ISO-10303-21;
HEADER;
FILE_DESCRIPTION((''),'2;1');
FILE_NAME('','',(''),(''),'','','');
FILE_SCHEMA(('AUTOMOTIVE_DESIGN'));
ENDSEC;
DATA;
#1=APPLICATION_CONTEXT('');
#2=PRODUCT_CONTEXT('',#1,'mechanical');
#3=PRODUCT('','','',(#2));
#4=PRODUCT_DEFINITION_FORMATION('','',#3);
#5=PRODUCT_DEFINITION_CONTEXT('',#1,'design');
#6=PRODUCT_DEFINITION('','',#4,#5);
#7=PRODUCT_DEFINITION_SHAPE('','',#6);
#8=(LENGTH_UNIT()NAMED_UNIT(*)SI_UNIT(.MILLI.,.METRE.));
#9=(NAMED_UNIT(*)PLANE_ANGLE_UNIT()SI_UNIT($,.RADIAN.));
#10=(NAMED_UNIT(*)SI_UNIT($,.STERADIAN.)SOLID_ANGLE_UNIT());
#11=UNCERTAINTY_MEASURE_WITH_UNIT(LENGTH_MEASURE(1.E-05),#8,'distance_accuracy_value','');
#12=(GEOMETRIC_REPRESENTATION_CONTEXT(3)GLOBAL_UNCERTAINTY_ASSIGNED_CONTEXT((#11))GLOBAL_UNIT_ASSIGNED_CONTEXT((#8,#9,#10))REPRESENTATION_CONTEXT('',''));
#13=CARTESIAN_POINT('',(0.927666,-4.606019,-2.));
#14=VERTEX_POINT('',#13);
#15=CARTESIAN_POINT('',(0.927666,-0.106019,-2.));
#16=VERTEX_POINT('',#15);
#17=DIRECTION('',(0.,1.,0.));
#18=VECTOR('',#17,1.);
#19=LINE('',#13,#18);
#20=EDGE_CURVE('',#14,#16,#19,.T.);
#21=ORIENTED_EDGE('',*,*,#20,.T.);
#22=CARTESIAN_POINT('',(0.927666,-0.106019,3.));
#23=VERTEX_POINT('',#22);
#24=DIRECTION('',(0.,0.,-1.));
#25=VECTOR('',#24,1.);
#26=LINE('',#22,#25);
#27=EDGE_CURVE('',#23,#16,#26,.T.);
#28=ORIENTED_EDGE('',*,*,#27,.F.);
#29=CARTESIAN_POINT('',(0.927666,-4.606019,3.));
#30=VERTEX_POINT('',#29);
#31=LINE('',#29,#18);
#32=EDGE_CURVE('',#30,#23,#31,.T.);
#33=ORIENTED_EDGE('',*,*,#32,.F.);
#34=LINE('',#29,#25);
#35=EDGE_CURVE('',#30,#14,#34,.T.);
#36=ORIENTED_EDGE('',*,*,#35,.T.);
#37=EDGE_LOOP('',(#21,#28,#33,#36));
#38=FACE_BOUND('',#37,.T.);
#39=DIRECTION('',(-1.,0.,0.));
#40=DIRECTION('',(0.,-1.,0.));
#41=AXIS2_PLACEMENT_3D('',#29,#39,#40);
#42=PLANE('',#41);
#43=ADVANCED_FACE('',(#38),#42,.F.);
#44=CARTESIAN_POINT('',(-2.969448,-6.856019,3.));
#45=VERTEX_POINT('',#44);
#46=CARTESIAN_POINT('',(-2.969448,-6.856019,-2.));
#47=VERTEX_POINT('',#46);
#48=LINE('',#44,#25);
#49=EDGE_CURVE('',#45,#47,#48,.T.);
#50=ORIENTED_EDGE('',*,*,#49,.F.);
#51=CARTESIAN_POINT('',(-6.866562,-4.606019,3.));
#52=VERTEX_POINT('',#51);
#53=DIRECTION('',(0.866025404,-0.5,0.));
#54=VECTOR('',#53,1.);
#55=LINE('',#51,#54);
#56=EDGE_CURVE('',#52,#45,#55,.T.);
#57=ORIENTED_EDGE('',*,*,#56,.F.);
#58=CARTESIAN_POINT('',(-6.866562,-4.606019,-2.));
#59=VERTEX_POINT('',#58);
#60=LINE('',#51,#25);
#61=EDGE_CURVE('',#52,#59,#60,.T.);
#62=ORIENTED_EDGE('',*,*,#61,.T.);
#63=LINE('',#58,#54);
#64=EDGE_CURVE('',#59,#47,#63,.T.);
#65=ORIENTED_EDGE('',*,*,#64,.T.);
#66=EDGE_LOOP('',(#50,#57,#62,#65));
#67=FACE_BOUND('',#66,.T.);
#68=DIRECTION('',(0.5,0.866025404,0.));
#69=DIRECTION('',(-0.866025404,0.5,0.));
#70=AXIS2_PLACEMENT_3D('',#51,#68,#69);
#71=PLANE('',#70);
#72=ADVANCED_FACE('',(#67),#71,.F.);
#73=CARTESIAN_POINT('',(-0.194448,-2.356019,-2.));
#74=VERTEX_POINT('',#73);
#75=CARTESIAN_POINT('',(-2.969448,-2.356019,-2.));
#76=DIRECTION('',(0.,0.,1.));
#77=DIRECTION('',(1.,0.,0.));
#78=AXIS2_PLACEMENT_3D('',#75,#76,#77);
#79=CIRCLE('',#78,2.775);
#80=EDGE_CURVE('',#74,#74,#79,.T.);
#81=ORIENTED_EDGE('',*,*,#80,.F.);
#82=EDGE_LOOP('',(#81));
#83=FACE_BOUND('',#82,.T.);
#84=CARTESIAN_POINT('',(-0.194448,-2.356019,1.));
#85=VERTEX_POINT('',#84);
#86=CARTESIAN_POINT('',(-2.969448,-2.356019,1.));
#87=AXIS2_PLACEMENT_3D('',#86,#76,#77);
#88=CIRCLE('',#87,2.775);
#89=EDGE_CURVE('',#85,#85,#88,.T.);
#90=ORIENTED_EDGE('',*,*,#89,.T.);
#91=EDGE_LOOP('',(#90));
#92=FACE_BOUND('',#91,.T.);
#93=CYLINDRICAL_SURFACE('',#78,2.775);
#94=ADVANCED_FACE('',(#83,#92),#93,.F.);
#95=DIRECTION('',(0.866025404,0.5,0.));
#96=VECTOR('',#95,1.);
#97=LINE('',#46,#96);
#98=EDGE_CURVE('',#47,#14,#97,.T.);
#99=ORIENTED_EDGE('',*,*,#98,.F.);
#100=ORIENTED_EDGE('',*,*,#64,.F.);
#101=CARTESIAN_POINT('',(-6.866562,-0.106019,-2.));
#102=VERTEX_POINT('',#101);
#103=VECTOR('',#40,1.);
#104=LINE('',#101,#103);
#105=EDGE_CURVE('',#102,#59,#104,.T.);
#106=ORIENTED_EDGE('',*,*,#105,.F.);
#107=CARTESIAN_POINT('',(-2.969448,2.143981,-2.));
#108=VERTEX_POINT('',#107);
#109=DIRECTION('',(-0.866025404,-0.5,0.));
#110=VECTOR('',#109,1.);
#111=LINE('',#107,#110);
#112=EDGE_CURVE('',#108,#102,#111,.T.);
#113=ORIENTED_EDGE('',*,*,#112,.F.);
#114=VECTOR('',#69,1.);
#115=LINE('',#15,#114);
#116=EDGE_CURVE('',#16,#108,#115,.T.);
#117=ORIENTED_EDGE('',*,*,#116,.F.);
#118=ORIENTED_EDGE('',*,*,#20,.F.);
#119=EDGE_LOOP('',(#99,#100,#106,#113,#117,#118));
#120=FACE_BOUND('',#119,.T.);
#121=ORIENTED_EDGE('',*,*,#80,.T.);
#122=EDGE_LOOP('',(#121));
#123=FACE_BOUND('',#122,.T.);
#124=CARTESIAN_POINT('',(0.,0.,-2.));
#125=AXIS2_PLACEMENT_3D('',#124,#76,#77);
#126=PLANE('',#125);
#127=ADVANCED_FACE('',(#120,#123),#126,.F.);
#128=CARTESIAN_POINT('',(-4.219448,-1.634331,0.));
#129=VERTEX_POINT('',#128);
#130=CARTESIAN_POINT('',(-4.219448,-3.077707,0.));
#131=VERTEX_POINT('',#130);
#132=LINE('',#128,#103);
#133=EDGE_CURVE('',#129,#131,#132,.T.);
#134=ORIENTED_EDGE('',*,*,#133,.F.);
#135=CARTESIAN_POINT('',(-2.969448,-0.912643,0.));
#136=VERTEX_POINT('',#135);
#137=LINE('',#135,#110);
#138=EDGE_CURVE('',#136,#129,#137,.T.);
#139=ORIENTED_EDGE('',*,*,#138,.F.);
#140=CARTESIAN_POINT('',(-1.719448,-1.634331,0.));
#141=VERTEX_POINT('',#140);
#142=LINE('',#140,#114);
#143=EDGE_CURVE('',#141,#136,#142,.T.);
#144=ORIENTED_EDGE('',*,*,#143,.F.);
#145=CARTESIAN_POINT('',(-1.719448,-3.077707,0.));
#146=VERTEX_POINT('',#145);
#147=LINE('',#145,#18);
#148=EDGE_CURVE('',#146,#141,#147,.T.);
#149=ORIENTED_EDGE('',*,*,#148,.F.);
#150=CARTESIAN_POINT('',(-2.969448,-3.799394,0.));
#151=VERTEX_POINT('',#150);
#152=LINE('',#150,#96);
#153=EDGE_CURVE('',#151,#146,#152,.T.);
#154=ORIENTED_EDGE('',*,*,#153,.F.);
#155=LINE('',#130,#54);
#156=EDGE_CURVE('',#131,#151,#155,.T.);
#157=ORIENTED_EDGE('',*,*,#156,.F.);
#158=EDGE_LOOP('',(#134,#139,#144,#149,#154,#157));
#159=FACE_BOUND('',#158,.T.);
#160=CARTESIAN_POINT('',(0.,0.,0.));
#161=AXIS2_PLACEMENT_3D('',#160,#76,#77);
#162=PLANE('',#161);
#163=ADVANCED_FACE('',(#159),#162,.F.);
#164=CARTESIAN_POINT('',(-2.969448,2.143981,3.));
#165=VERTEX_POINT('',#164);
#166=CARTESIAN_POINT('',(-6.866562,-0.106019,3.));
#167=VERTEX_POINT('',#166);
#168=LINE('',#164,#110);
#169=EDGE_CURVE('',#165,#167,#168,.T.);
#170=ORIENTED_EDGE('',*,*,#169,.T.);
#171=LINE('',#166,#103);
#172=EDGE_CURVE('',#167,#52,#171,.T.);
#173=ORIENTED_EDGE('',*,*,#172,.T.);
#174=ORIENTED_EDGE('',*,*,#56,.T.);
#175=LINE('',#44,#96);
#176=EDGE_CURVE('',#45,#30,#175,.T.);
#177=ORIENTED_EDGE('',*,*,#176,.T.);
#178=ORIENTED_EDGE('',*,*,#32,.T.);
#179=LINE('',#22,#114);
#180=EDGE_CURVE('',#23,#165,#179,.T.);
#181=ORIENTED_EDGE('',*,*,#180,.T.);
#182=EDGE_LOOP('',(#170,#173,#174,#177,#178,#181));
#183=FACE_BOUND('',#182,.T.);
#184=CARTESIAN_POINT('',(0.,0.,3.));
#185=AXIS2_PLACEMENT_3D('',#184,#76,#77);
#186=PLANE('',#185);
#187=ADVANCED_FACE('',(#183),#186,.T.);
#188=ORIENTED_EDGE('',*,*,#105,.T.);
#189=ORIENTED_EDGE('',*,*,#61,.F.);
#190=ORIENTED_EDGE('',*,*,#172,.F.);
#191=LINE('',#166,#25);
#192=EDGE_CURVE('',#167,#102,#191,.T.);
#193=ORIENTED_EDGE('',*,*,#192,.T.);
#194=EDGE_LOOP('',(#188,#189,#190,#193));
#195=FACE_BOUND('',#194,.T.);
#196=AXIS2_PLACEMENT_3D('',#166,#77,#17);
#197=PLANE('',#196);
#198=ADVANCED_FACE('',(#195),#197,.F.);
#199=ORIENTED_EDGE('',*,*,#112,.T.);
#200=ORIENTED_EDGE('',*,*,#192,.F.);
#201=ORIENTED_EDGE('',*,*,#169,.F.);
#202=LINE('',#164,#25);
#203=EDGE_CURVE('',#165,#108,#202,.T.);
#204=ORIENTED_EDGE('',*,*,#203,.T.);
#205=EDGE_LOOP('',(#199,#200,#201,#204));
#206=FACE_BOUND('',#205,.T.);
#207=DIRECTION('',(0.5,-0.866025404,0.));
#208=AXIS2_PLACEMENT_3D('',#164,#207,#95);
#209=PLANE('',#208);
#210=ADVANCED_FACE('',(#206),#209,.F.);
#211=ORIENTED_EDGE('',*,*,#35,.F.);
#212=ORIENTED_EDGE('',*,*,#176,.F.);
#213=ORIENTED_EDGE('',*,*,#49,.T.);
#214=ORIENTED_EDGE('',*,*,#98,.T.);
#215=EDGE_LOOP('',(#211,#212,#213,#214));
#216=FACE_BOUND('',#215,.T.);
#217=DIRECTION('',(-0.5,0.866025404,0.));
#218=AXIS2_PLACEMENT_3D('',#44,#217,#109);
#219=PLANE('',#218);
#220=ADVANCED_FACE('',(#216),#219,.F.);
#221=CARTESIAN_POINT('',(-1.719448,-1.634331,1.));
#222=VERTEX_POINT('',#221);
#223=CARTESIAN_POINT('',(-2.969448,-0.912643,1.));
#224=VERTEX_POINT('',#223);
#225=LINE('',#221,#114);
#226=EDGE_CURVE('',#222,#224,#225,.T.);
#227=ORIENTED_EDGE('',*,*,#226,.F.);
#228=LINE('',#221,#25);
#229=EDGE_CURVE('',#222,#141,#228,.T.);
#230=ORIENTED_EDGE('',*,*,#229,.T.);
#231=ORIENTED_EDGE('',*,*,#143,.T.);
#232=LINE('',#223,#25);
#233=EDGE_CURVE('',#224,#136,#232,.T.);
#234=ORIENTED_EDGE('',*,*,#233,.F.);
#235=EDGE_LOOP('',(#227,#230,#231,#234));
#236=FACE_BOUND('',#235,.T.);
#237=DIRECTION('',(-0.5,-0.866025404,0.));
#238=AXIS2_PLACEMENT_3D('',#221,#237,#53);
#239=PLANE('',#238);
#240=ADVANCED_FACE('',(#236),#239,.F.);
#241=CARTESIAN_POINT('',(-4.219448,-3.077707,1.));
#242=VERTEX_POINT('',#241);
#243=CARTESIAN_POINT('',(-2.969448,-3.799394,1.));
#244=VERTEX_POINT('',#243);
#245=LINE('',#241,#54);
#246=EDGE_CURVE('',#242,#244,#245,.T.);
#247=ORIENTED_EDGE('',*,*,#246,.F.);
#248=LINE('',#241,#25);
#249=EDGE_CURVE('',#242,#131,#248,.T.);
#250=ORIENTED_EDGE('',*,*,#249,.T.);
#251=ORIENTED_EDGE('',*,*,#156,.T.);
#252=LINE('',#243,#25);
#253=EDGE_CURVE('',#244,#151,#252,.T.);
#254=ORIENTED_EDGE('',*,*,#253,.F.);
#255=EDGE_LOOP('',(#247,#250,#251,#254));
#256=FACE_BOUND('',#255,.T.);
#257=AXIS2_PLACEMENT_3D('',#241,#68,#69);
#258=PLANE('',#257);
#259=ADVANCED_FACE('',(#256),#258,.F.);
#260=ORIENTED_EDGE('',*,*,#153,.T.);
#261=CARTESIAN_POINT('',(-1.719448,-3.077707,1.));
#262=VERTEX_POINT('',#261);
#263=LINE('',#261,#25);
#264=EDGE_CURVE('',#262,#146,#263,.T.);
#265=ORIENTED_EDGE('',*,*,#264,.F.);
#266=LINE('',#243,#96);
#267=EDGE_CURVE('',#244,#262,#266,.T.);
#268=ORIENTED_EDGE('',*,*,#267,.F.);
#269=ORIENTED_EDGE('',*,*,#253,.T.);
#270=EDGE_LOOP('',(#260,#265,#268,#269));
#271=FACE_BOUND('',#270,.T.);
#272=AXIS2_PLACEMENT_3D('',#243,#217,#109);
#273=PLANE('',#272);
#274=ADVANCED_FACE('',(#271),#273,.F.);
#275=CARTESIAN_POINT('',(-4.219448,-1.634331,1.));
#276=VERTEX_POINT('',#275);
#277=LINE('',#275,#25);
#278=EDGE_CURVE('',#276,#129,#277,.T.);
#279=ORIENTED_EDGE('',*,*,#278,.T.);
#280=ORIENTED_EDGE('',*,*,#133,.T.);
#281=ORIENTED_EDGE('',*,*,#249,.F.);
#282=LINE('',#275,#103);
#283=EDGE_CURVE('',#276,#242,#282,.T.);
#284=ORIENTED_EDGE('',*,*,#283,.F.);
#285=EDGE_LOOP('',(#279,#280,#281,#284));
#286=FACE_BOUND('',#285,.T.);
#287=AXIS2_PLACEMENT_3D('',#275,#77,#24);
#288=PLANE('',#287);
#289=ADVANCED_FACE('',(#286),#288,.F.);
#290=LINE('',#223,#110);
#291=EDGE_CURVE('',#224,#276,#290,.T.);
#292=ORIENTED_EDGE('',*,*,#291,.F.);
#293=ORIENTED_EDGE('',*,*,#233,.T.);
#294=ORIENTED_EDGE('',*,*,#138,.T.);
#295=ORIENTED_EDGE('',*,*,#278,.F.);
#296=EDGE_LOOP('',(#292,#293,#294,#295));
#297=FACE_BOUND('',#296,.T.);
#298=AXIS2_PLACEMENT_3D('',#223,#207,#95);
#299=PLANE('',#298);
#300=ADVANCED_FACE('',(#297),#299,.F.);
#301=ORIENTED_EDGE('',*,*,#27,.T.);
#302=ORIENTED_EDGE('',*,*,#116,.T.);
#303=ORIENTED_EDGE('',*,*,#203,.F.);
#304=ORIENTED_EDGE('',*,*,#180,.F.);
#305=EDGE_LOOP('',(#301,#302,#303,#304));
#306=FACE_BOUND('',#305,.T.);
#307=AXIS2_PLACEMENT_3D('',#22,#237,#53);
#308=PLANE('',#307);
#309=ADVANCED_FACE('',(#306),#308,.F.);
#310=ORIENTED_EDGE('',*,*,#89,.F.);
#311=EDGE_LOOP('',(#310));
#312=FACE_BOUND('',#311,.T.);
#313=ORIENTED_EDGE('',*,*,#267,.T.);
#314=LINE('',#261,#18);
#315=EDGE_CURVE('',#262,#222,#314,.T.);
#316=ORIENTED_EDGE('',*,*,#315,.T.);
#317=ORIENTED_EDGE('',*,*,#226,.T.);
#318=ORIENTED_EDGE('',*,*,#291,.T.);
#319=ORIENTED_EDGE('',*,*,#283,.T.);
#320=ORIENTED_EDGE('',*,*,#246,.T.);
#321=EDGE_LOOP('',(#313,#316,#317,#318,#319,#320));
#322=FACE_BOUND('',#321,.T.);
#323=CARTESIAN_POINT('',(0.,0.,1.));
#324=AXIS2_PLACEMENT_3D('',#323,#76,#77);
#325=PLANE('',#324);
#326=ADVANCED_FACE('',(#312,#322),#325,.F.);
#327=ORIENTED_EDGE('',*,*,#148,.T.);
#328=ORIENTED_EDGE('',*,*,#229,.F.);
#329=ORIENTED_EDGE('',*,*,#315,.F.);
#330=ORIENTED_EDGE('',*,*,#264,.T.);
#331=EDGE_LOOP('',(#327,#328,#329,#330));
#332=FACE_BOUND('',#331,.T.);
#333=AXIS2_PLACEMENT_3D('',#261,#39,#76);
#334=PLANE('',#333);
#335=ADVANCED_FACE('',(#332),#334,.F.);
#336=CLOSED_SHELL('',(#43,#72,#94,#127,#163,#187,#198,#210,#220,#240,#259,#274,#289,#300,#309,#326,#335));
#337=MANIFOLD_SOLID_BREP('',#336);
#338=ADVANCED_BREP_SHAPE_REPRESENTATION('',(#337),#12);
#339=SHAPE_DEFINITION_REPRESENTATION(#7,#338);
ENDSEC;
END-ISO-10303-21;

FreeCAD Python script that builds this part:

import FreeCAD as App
import Part
import Sketcher

V = App.Vector
Q = App.Units.Quantity

doc = App.newDocument("Part")
body = doc.addObject("PartDesign::Body", "Body")

# Sketch on XY plane
sketch1 = body.newObject("Sketcher::SketchObject", "Sketch")
sketch1.AttachmentSupport = (doc.getObject("XY_Plane"), [""])
sketch1.MapMode = "FlatFace"
sketch1.addGeometry(Part.LineSegment(V(-1.7, -3.1, 0), V(-1.7, -1.6, 0)), False)
sketch1.addGeometry(Part.LineSegment(V(-1.7, -1.6, 0), V(-3, -0.9, 0)), False)
sketch1.addGeometry(Part.LineSegment(V(-3, -0.9, 0), V(-4.2, -1.6, 0)), False)
sketch1.addGeometry(Part.LineSegment(V(-4.2, -1.6, 0), V(-4.2, -3.1, 0)), False)
sketch1.addGeometry(Part.LineSegment(V(-4.2, -3.1, 0), V(-3, -3.8, 0)), False)
sketch1.addGeometry(Part.LineSegment(V(-3, -3.8, 0), V(-1.7, -3.1, 0)), False)
sketch1.addConstraint(Sketcher.Constraint("Coincident", 0, 2, 1, 1))
sketch1.addConstraint(Sketcher.Constraint("Coincident", 1, 2, 2, 1))
sketch1.addConstraint(Sketcher.Constraint("Coincident", 2, 2, 3, 1))
sketch1.addConstraint(Sketcher.Constraint("Coincident", 3, 2, 4, 1))
sketch1.addConstraint(Sketcher.Constraint("Coincident", 4, 2, 5, 1))
sketch1.addConstraint(Sketcher.Constraint("Coincident", 5, 2, 0, 1))
sketch1.addConstraint(Sketcher.Constraint("Vertical", 0))
sketch1.addConstraint(Sketcher.Constraint("Vertical", 3))
sketch1.addConstraint(Sketcher.Constraint("Parallel", 1, 4))
sketch1.addConstraint(Sketcher.Constraint("Parallel", 2, 5))
sketch1.addConstraint(Sketcher.Constraint("Horizontal", 0, 2, 2, 2))
sketch1.addConstraint(Sketcher.Constraint("Horizontal", 3, 2, 5, 2))
sketch1.addConstraint(Sketcher.Constraint("Vertical", 1, 2, 4, 2))
sketch1.addConstraint(Sketcher.Constraint("Angle", 1, Q("150 deg")))
sketch1.addConstraint(Sketcher.Constraint("DistanceX", 2, 2, 0, 2, Q("2.5 mm")))
sketch1.addConstraint(Sketcher.Constraint("DistanceY", 0, 1, 0, 2, Q("1.443376 mm")))
sketch1.addConstraint(Sketcher.Constraint("DistanceX", 0, 2, -1, 1, Q("1.719448 mm")))
sketch1.addConstraint(Sketcher.Constraint("DistanceY", 0, 2, -1, 1, Q("1.634331 mm")))
pad1 = body.newObject("PartDesign::Pad", "Pad")
pad1.Profile = sketch1
pad1.Length = 1
body2 = doc.addObject("PartDesign::Body", "Body001")

# Sketch on XY plane
sketch2 = body2.newObject("Sketcher::SketchObject", "Sketch001")
sketch2.AttachmentSupport = (doc.getObject("XY_Plane001"), [""])
sketch2.MapMode = "FlatFace"
sketch2.AttachmentOffset = App.Placement(V(0, 0, 1), App.Rotation())
sketch2.addGeometry(Part.LineSegment(V(-3, -6.9, 0), V(0.9, -4.6, 0)), False)
sketch2.addGeometry(Part.LineSegment(V(0.9, -4.6, 0), V(0.9, -0.1, 0)), False)
sketch2.addGeometry(Part.LineSegment(V(0.9, -0.1, 0), V(-3, 2.1, 0)), False)
sketch2.addGeometry(Part.LineSegment(V(-3, 2.1, 0), V(-6.9, -0.1, 0)), False)
sketch2.addGeometry(Part.LineSegment(V(-6.9, -0.1, 0), V(-6.9, -4.6, 0)), False)
sketch2.addGeometry(Part.LineSegment(V(-6.9, -4.6, 0), V(-3, -6.9, 0)), False)
sketch2.addGeometry(Part.Circle(V(-3, -2.4, 0), V(0, 0, 1), 2.8), False)
sketch2.addConstraint(Sketcher.Constraint("Coincident", 0, 2, 1, 1))
sketch2.addConstraint(Sketcher.Constraint("Coincident", 1, 2, 2, 1))
sketch2.addConstraint(Sketcher.Constraint("Coincident", 2, 2, 3, 1))
sketch2.addConstraint(Sketcher.Constraint("Coincident", 3, 2, 4, 1))
sketch2.addConstraint(Sketcher.Constraint("Coincident", 4, 2, 5, 1))
sketch2.addConstraint(Sketcher.Constraint("Coincident", 5, 2, 0, 1))
sketch2.addConstraint(Sketcher.Constraint("Vertical", 1))
sketch2.addConstraint(Sketcher.Constraint("Vertical", 4))
sketch2.addConstraint(Sketcher.Constraint("Parallel", 0, 3))
sketch2.addConstraint(Sketcher.Constraint("Parallel", 2, 5))
sketch2.addConstraint(Sketcher.Constraint("Horizontal", 1, 2, 3, 2))
sketch2.addConstraint(Sketcher.Constraint("Horizontal", 0, 2, 4, 2))
sketch2.addConstraint(Sketcher.Constraint("Vertical", 6, 3, 2, 2))
sketch2.addConstraint(Sketcher.Constraint("Vertical", 2, 2, 5, 2))
sketch2.addConstraint(Sketcher.Constraint("Diameter", 6, Q("5.55 mm")))
sketch2.addConstraint(Sketcher.Constraint("Angle", 0, Q("30 deg")))
sketch2.addConstraint(Sketcher.Constraint("DistanceY", 1, 1, 1, 2, Q("4.5 mm")))
sketch2.addConstraint(Sketcher.Constraint("Distance", 0, Q("4.5 mm")))
sketch2.addConstraint(Sketcher.Constraint("DistanceY", 6, 3, 2, 2, Q("4.5 mm")))
sketch2.addConstraint(Sketcher.Constraint("DistanceX", 6, 3, -1, 1, Q("2.969448 mm")))
sketch2.addConstraint(Sketcher.Constraint("DistanceY", 6, 3, -1, 1, Q("2.356019 mm")))
pad2 = body2.newObject("PartDesign::Pad", "Pad001")
pad2.Profile = sketch2
pad2.Length = 3
pad2.Reversed = True
body.AllowCompound = True
doc.recompute()

boolean = body.newObject("PartDesign::Boolean", "Boolean")
boolean.Type = "Fuse"
boolean.addObjects([body2])

# Sketch on XY plane
sketch3 = body.newObject("Sketcher::SketchObject", "Sketch002")
sketch3.AttachmentSupport = (doc.getObject("XY_Plane"), [""])
sketch3.MapMode = "FlatFace"
sketch3.AttachmentOffset = App.Placement(V(0, 0, 1), App.Rotation())
sketch3.addGeometry(Part.LineSegment(V(-3, -6.9, 0), V(0.9, -4.6, 0)), False)
sketch3.addGeometry(Part.LineSegment(V(0.9, -4.6, 0), V(0.9, -0.1, 0)), False)
sketch3.addGeometry(Part.LineSegment(V(0.9, -0.1, 0), V(-3, 2.1, 0)), False)
sketch3.addGeometry(Part.LineSegment(V(-3, 2.1, 0), V(-6.9, -0.1, 0)), False)
sketch3.addGeometry(Part.LineSegment(V(-6.9, -0.1, 0), V(-6.9, -4.6, 0)), False)
sketch3.addGeometry(Part.LineSegment(V(-6.9, -4.6, 0), V(-3, -6.9, 0)), False)
sketch3.addConstraint(Sketcher.Constraint("Coincident", 0, 2, 1, 1))
sketch3.addConstraint(Sketcher.Constraint("Coincident", 1, 2, 2, 1))
sketch3.addConstraint(Sketcher.Constraint("Coincident", 2, 2, 3, 1))
sketch3.addConstraint(Sketcher.Constraint("Coincident", 3, 2, 4, 1))
sketch3.addConstraint(Sketcher.Constraint("Coincident", 4, 2, 5, 1))
sketch3.addConstraint(Sketcher.Constraint("Coincident", 5, 2, 0, 1))
sketch3.addConstraint(Sketcher.Constraint("Vertical", 1))
sketch3.addConstraint(Sketcher.Constraint("Vertical", 4))
sketch3.addConstraint(Sketcher.Constraint("Parallel", 0, 3))
sketch3.addConstraint(Sketcher.Constraint("Parallel", 2, 5))
sketch3.addConstraint(Sketcher.Constraint("Horizontal", 1, 2, 3, 2))
sketch3.addConstraint(Sketcher.Constraint("Horizontal", 0, 2, 4, 2))
sketch3.addConstraint(Sketcher.Constraint("Vertical", 2, 2, 5, 2))
sketch3.addConstraint(Sketcher.Constraint("Angle", 0, Q("30 deg")))
sketch3.addConstraint(Sketcher.Constraint("DistanceY", 1, 1, 1, 2, Q("4.5 mm")))
sketch3.addConstraint(Sketcher.Constraint("DistanceY", 5, 2, 2, 2, Q("9 mm")))
sketch3.addConstraint(Sketcher.Constraint("DistanceY", 0, 2, -1, 1, Q("4.606019 mm")))
sketch3.addConstraint(Sketcher.Constraint("DistanceX", 2, 2, -1, 1, Q("2.969448 mm")))
pad3 = body.newObject("PartDesign::Pad", "Pad002")
pad3.Profile = sketch3
pad3.Length = 2

doc.recompute()
